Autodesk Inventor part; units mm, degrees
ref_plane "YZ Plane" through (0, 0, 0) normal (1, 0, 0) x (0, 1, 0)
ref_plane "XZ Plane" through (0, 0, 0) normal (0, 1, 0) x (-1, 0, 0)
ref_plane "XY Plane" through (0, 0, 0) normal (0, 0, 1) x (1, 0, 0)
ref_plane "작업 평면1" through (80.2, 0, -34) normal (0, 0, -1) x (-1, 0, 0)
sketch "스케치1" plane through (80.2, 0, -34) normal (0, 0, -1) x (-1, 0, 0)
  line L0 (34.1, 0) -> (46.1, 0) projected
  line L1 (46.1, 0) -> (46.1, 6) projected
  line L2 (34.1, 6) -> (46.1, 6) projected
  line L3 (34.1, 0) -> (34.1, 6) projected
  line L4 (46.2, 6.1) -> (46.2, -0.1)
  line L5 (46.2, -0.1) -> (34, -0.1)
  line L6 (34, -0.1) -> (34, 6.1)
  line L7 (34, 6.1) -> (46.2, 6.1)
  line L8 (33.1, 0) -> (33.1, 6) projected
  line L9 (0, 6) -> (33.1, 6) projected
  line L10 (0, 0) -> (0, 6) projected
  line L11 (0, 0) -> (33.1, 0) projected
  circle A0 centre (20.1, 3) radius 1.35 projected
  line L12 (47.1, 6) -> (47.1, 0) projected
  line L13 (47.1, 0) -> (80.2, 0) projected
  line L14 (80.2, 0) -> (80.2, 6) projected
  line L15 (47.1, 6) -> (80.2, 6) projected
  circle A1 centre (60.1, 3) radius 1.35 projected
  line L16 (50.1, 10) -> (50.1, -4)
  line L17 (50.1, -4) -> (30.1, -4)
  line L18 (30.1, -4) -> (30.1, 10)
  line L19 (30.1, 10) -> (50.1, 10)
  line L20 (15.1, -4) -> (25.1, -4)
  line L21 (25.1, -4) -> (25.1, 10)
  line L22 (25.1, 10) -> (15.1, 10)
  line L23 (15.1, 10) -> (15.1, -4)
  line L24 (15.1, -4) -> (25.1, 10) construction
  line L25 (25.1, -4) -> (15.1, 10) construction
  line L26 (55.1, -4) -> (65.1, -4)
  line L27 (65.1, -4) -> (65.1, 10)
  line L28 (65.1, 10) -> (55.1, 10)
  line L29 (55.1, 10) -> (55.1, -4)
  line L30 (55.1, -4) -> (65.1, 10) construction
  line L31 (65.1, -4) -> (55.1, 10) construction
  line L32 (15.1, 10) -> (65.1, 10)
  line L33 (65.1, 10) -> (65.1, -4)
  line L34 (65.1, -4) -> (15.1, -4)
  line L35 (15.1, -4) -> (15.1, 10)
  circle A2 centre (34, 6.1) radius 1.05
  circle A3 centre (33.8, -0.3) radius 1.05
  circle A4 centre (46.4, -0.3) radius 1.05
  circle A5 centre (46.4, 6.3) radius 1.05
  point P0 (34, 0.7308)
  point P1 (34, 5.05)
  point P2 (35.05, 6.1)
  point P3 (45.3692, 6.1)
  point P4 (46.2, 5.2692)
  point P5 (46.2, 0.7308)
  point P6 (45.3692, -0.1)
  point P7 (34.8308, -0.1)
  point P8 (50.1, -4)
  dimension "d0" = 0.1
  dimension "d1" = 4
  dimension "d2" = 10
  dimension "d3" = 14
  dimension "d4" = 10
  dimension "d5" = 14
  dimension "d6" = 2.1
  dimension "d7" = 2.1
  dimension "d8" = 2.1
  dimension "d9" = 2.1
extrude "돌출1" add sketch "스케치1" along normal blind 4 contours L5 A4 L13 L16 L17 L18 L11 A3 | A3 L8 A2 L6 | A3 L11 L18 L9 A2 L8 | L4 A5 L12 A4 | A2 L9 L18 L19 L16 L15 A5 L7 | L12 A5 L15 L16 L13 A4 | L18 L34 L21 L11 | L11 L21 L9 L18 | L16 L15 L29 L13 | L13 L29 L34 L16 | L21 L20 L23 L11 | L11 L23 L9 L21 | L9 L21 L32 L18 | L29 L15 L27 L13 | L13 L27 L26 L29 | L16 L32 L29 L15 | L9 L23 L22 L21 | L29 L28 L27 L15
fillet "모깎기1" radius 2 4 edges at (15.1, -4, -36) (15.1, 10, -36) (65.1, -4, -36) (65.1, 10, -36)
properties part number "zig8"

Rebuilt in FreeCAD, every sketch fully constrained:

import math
import FreeCAD as App
import Part
import Sketcher
from FreeCAD import Vector


def edges_at(feature, points):
    """Names of the edges that pass closest to the given points."""
    edges = feature.Shape.Edges
    near = lambda p: min(range(len(edges)), key=lambda i: edges[i].distToShape(Part.Vertex(*p))[0])
    return sorted({f"Edge{near(p) + 1}" for p in points})

doc = App.newDocument("Part")
body = doc.addObject("PartDesign::Body", "Body")

# Sketch on XY plane
sketch1 = body.newObject("Sketcher::SketchObject", "Sketch")
sketch1.AttachmentSupport = (doc.getObject("XY_Plane"), [""])
sketch1.MapMode = "FlatFace"
sketch1.AttachmentOffset = App.Placement(Vector(0, 0, -34), App.Rotation())
sketch1.addGeometry([
    Part.LineSegment(Vector(15.1, -4, 0), Vector(15.1, 10, 0)),  # 0
    Part.LineSegment(Vector(15.1, 10, 0), Vector(65.1, 10, 0)),  # 1
    Part.LineSegment(Vector(65.1, 10, 0), Vector(65.1, -4, 0)),  # 2
    Part.LineSegment(Vector(65.1, -4, 0), Vector(15.1, -4, 0)),  # 3
    Part.LineSegment(Vector(34.8, -0.1, 0), Vector(45.4, -0.1, 0)),  # 4
    Part.ArcOfCircle(Part.Circle(Vector(46.4, -0.3, 0), Vector(0, 0, 1), 1.1), math.radians(169), math.radians(461)),  # 5
    Part.LineSegment(Vector(46.2, 0.7, 0), Vector(46.2, 5, 0)),  # 6
    Part.ArcOfCircle(Part.Circle(Vector(46.2, 6.1, 0), Vector(0, 0, 1), 1.1), math.radians(-90), math.radians(180)),  # 7
    Part.LineSegment(Vector(45.1, 6.1, 0), Vector(34.8, 6.1, 0)),  # 8
    Part.ArcOfCircle(Part.Circle(Vector(33.8, 6.3, 0), Vector(0, 0, 1), 1.1), math.radians(-11), math.radians(281)),  # 9
    Part.LineSegment(Vector(34, 5.3, 0), Vector(34, 0.7, 0)),  # 10
    Part.ArcOfCircle(Part.Circle(Vector(33.8, -0.3, 0), Vector(0, 0, 1), 1.1), math.radians(79), math.radians(371)),  # 11
    Part.Circle(Vector(20.1, 3, 0), Vector(0, 0, 1), 1.4),  # 12
    Part.Circle(Vector(60.1, 3, 0), Vector(0, 0, 1), 1.4),  # 13
], False)
sketch1.addConstraint([
    Sketcher.Constraint("Coincident", 0, 2, 1, 1),
    Sketcher.Constraint("Coincident", 1, 2, 2, 1),
    Sketcher.Constraint("Coincident", 2, 2, 3, 1),
    Sketcher.Constraint("Coincident", 3, 2, 0, 1),
    Sketcher.Constraint("Coincident", 4, 2, 5, 1),
    Sketcher.Constraint("Coincident", 5, 2, 6, 1),
    Sketcher.Constraint("Coincident", 6, 2, 7, 1),
    Sketcher.Constraint("Coincident", 7, 2, 8, 1),
    Sketcher.Constraint("Coincident", 8, 2, 9, 1),
    Sketcher.Constraint("Coincident", 9, 2, 10, 1),
    Sketcher.Constraint("Coincident", 10, 2, 11, 1),
    Sketcher.Constraint("Coincident", 11, 2, 4, 1),
    Sketcher.Constraint("Vertical", 0),
    Sketcher.Constraint("Horizontal", 1),
    Sketcher.Constraint("Vertical", 2),
    Sketcher.Constraint("Horizontal", 3),
    Sketcher.Constraint("Horizontal", 4),
    Sketcher.Constraint("Vertical", 6),
    Sketcher.Constraint("Horizontal", 8),
    Sketcher.Constraint("Vertical", 10),
    Sketcher.Constraint("Equal", 5, 7),
    Sketcher.Constraint("Equal", 7, 9),
    Sketcher.Constraint("Equal", 9, 11),
    Sketcher.Constraint("Equal", 12, 13),
    Sketcher.Constraint("Horizontal", 5, 3, 11, 3),
    Sketcher.Constraint("Horizontal", 12, 3, 13, 3),
    Sketcher.Constraint("Horizontal", 5, 2, 10, 2),
    Sketcher.Constraint("Vertical", 9, 3, 11, 3),
    Sketcher.Constraint("Vertical", 7, 3, 5, 2),
    Sketcher.Constraint("Vertical", 8, 2, 11, 2),
    Sketcher.Constraint("DistanceY", 0, 1, 0, 2, 14.0),
    Sketcher.Constraint("Radius", 5, 1.05),
    Sketcher.Constraint("DistanceY", -1, 1, 0, 2, 10.0),
    Sketcher.Constraint("Diameter", 12, 2.7),
    Sketcher.Constraint("DistanceY", 4, 2, -1, 1, 0.1),
    Sketcher.Constraint("DistanceX", 1, 1, 1, 2, 50.0),
    Sketcher.Constraint("DistanceY", -1, 1, 12, 3, 3.0),
    Sketcher.Constraint("DistanceX", -1, 1, 9, 2, 34.0),
    Sketcher.Constraint("DistanceX", 12, 3, 13, 3, 40.0),
    Sketcher.Constraint("DistanceX", 0, 2, 12, 3, 5.0),
    Sketcher.Constraint("DistanceX", -1, 1, 5, 3, 46.4),
    Sketcher.Constraint("DistanceY", 5, 3, -1, 1, 0.3),
    Sketcher.Constraint("DistanceX", -1, 1, 7, 3, 46.2),
    Sketcher.Constraint("DistanceY", -1, 1, 7, 3, 6.1),
    Sketcher.Constraint("DistanceY", -1, 1, 9, 3, 6.3),
    Sketcher.Constraint("DistanceX", -1, 1, 12, 3, 20.1),
])
pad1 = body.newObject("PartDesign::Pad", "Pad")
pad1.Profile = sketch1
pad1.Length = 4
pad1.Reversed = True
doc.recompute()

fillet = body.newObject("PartDesign::Fillet", "Fillet")
fillet.Base = (pad1, edges_at(pad1, [
    (15.1, -4, -36),
    (15.1, 10, -36),
    (65.1, -4, -36),
    (65.1, 10, -36),
]))
fillet.Radius = 2

doc.recompute()
